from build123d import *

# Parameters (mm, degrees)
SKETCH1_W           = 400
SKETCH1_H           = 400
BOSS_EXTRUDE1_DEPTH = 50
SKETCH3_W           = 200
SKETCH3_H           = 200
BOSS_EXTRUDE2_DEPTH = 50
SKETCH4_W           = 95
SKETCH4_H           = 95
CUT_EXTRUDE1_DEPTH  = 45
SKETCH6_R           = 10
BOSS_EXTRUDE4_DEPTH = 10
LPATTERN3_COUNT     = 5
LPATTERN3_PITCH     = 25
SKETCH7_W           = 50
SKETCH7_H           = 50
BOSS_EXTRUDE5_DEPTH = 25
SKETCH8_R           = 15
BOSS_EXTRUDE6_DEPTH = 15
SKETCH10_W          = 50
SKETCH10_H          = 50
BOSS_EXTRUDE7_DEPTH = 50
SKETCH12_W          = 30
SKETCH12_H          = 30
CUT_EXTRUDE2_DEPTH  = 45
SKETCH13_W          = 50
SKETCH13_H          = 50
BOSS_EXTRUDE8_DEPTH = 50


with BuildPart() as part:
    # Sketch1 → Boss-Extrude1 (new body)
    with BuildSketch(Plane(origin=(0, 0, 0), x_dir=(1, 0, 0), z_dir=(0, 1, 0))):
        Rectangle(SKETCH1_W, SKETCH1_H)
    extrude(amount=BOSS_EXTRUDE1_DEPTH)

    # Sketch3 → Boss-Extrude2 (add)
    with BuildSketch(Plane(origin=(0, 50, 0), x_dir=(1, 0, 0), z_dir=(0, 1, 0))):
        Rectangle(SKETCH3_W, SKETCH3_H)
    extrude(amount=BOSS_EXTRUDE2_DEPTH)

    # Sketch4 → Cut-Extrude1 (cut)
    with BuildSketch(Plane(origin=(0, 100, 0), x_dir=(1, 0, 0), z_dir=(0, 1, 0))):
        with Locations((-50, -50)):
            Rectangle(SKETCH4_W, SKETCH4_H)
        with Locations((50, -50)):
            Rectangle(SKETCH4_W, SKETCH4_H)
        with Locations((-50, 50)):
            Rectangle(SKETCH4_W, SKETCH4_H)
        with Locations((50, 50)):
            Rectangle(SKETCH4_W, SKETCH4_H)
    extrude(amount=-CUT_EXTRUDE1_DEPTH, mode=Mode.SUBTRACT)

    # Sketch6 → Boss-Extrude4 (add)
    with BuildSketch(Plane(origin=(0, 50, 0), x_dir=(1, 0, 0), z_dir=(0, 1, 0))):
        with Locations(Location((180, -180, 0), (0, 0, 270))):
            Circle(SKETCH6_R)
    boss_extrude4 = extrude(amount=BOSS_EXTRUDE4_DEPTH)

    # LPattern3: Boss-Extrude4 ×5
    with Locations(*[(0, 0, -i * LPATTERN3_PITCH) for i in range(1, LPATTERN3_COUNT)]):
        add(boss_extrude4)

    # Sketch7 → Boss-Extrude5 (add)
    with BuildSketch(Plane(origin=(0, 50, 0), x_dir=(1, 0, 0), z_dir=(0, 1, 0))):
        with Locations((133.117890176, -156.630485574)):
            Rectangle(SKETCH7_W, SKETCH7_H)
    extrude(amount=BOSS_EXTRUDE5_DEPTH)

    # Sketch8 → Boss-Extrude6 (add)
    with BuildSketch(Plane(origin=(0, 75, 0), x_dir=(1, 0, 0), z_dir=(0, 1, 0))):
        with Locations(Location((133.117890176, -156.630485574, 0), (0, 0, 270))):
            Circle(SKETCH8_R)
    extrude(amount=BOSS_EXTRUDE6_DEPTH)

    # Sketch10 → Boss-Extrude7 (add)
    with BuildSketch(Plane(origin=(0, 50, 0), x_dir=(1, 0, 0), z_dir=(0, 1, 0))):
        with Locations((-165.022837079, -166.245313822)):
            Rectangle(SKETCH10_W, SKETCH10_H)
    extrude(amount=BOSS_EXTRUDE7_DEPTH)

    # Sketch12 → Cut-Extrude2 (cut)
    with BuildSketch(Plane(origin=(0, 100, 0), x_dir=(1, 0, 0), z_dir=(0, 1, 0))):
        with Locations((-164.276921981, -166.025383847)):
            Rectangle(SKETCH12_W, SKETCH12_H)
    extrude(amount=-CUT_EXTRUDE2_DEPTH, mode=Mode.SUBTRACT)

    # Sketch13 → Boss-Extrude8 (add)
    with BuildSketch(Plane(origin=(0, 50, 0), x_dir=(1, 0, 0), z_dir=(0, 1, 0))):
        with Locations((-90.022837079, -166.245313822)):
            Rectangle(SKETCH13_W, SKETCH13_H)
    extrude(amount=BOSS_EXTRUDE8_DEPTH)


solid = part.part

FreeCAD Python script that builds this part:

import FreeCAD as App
import Part
import Sketcher

doc = App.newDocument("Part")
params = doc.addObject("Spreadsheet::Sheet", "Params")
for row, (alias, value) in enumerate([
    ("sketch1_width", "400 mm"),
    ("pad1_length", "50 mm"),
    ("sketch2_width", "200 mm"),
    ("pad2_length", "50 mm"),
    ("sketch3_width", "95 mm"),
    ("pocket1_length", "45 mm"),
    ("sketch4_diameter", "20 mm"),
    ("pad3_length", "10 mm"),
    ("linearpattern_pitch", "25 mm"),
    ("sketch5_width", "50 mm"),
    ("pad4_length", "25 mm"),
    ("sketch6_diameter", "30 mm"),
    ("pad5_length", "15 mm"),
    ("sketch7_width", "50 mm"),
    ("pad6_length", "50 mm"),
    ("sketch8_width", "30 mm"),
    ("pocket2_length", "45 mm"),
    ("sketch9_width", "50 mm"),
    ("pad7_length", "50 mm"),
], start=1):
    params.set(f"A{row}", alias)
    params.set(f"B{row}", "=" + value)
    params.setAlias(f"B{row}", alias)

body = doc.addObject("PartDesign::Body", "Body")

# Sketch on XZ plane
sketch1 = body.newObject("Sketcher::SketchObject", "Sketch")
sketch1.AttachmentSupport = (doc.getObject("XZ_Plane"), [""])
sketch1.MapMode = "FlatFace"
sketch1.addGeometry(Part.LineSegment(App.Vector(-200, -200, 0), App.Vector(-200, 200, 0)), False)
sketch1.addGeometry(Part.LineSegment(App.Vector(-200, 200, 0), App.Vector(200, 200, 0)), False)
sketch1.addGeometry(Part.LineSegment(App.Vector(200, 200, 0), App.Vector(200, -200, 0)), False)
sketch1.addGeometry(Part.LineSegment(App.Vector(200, -200, 0), App.Vector(-200, -200, 0)), False)
sketch1.addConstraint(Sketcher.Constraint("Coincident", 0, 2, 1, 1))
sketch1.addConstraint(Sketcher.Constraint("Coincident", 1, 2, 2, 1))
sketch1.addConstraint(Sketcher.Constraint("Coincident", 2, 2, 3, 1))
sketch1.addConstraint(Sketcher.Constraint("Coincident", 3, 2, 0, 1))
sketch1.addConstraint(Sketcher.Constraint("Vertical", 0))
sketch1.addConstraint(Sketcher.Constraint("Horizontal", 1))
sketch1.addConstraint(Sketcher.Constraint("Vertical", 2))
sketch1.addConstraint(Sketcher.Constraint("Horizontal", 3))
sketch1.addConstraint(Sketcher.Constraint("Symmetric", 0, 2, 2, 2, -1, 1))
sketch1.addConstraint(Sketcher.Constraint("Equal", 3, 0))
sketch1.addConstraint(Sketcher.Constraint("DistanceX", 1, 1, 1, 2, 400.0))
sketch1.setExpression("Constraints[10]", "Params.sketch1_width")
pad1 = body.newObject("PartDesign::Pad", "Pad")
pad1.Profile = sketch1
pad1.setExpression("Length", "Params.pad1_length")
pad1.Reversed = True

# Sketch on XZ plane
sketch2 = body.newObject("Sketcher::SketchObject", "Sketch001")
sketch2.AttachmentSupport = (doc.getObject("XZ_Plane"), [""])
sketch2.MapMode = "FlatFace"
sketch2.AttachmentOffset = App.Placement(App.Vector(0, 0, -50), App.Rotation())
sketch2.addGeometry(Part.LineSegment(App.Vector(-100, -100, 0), App.Vector(-100, 100, 0)), False)
sketch2.addGeometry(Part.LineSegment(App.Vector(-100, 100, 0), App.Vector(100, 100, 0)), False)
sketch2.addGeometry(Part.LineSegment(App.Vector(100, 100, 0), App.Vector(100, -100, 0)), False)
sketch2.addGeometry(Part.LineSegment(App.Vector(100, -100, 0), App.Vector(-100, -100, 0)), False)
sketch2.addConstraint(Sketcher.Constraint("Coincident", 0, 2, 1, 1))
sketch2.addConstraint(Sketcher.Constraint("Coincident", 1, 2, 2, 1))
sketch2.addConstraint(Sketcher.Constraint("Coincident", 2, 2, 3, 1))
sketch2.addConstraint(Sketcher.Constraint("Coincident", 3, 2, 0, 1))
sketch2.addConstraint(Sketcher.Constraint("Vertical", 0))
sketch2.addConstraint(Sketcher.Constraint("Horizontal", 1))
sketch2.addConstraint(Sketcher.Constraint("Vertical", 2))
sketch2.addConstraint(Sketcher.Constraint("Horizontal", 3))
sketch2.addConstraint(Sketcher.Constraint("Symmetric", 0, 2, 2, 2, -1, 1))
sketch2.addConstraint(Sketcher.Constraint("Equal", 3, 0))
sketch2.addConstraint(Sketcher.Constraint("DistanceX", 1, 1, 1, 2, 200.0))
sketch2.setExpression("Constraints[10]", "Params.sketch2_width")
pad2 = body.newObject("PartDesign::Pad", "Pad001")
pad2.Profile = sketch2
pad2.setExpression("Length", "Params.pad2_length")
pad2.Reversed = True

# Sketch on XZ plane
sketch3 = body.newObject("Sketcher::SketchObject", "Sketch002")
sketch3.AttachmentSupport = (doc.getObject("XZ_Plane"), [""])
sketch3.MapMode = "FlatFace"
sketch3.AttachmentOffset = App.Placement(App.Vector(0, 0, -100), App.Rotation())
sketch3.addGeometry(Part.LineSegment(App.Vector(-98, 2, 0), App.Vector(-98, 98, 0)), False)
sketch3.addGeometry(Part.LineSegment(App.Vector(-98, 98, 0), App.Vector(-2, 98, 0)), False)
sketch3.addGeometry(Part.LineSegment(App.Vector(-2, 98, 0), App.Vector(-2, 2, 0)), False)
sketch3.addGeometry(Part.LineSegment(App.Vector(-2, 2, 0), App.Vector(-98, 2, 0)), False)
sketch3.addGeometry(Part.LineSegment(App.Vector(2, 2, 0), App.Vector(2, 98, 0)), False)
sketch3.addGeometry(Part.LineSegment(App.Vector(2, 98, 0), App.Vector(98, 98, 0)), False)
sketch3.addGeometry(Part.LineSegment(App.Vector(98, 98, 0), App.Vector(98, 2, 0)), False)
sketch3.addGeometry(Part.LineSegment(App.Vector(98, 2, 0), App.Vector(2, 2, 0)), False)
sketch3.addGeometry(Part.LineSegment(App.Vector(-98, -98, 0), App.Vector(-98, -2, 0)), False)
sketch3.addGeometry(Part.LineSegment(App.Vector(-98, -2, 0), App.Vector(-2, -2, 0)), False)
sketch3.addGeometry(Part.LineSegment(App.Vector(-2, -2, 0), App.Vector(-2, -98, 0)), False)
sketch3.addGeometry(Part.LineSegment(App.Vector(-2, -98, 0), App.Vector(-98, -98, 0)), False)
sketch3.addGeometry(Part.LineSegment(App.Vector(2, -98, 0), App.Vector(2, -2, 0)), False)
sketch3.addGeometry(Part.LineSegment(App.Vector(2, -2, 0), App.Vector(98, -2, 0)), False)
sketch3.addGeometry(Part.LineSegment(App.Vector(98, -2, 0), App.Vector(98, -98, 0)), False)
sketch3.addGeometry(Part.LineSegment(App.Vector(98, -98, 0), App.Vector(2, -98, 0)), False)
sketch3.addConstraint(Sketcher.Constraint("Coincident", 0, 2, 1, 1))
sketch3.addConstraint(Sketcher.Constraint("Coincident", 1, 2, 2, 1))
sketch3.addConstraint(Sketcher.Constraint("Coincident", 2, 2, 3, 1))
sketch3.addConstraint(Sketcher.Constraint("Coincident", 3, 2, 0, 1))
sketch3.addConstraint(Sketcher.Constraint("Coincident", 4, 2, 5, 1))
sketch3.addConstraint(Sketcher.Constraint("Coincident", 5, 2, 6, 1))
sketch3.addConstraint(Sketcher.Constraint("Coincident", 6, 2, 7, 1))
sketch3.addConstraint(Sketcher.Constraint("Coincident", 7, 2, 4, 1))
sketch3.addConstraint(Sketcher.Constraint("Coincident", 8, 2, 9, 1))
sketch3.addConstraint(Sketcher.Constraint("Coincident", 9, 2, 10, 1))
sketch3.addConstraint(Sketcher.Constraint("Coincident", 10, 2, 11, 1))
sketch3.addConstraint(Sketcher.Constraint("Coincident", 11, 2, 8, 1))
sketch3.addConstraint(Sketcher.Constraint("Coincident", 12, 2, 13, 1))
sketch3.addConstraint(Sketcher.Constraint("Coincident", 13, 2, 14, 1))
sketch3.addConstraint(Sketcher.Constraint("Coincident", 14, 2, 15, 1))
sketch3.addConstraint(Sketcher.Constraint("Coincident", 15, 2, 12, 1))
sketch3.addConstraint(Sketcher.Constraint("Vertical", 0))
sketch3.addConstraint(Sketcher.Constraint("Horizontal", 1))
sketch3.addConstraint(Sketcher.Constraint("Vertical", 2))
sketch3.addConstraint(Sketcher.Constraint("Horizontal", 3))
sketch3.addConstraint(Sketcher.Constraint("Vertical", 4))
sketch3.addConstraint(Sketcher.Constraint("Horizontal", 5))
sketch3.addConstraint(Sketcher.Constraint("Vertical", 6))
sketch3.addConstraint(Sketcher.Constraint("Horizontal", 7))
sketch3.addConstraint(Sketcher.Constraint("Vertical", 8))
sketch3.addConstraint(Sketcher.Constraint("Horizontal", 9))
sketch3.addConstraint(Sketcher.Constraint("Vertical", 10))
sketch3.addConstraint(Sketcher.Constraint("Horizontal", 11))
sketch3.addConstraint(Sketcher.Constraint("Vertical", 12))
sketch3.addConstraint(Sketcher.Constraint("Horizontal", 13))
sketch3.addConstraint(Sketcher.Constraint("Vertical", 14))
sketch3.addConstraint(Sketcher.Constraint("Horizontal", 15))
sketch3.addConstraint(Sketcher.Constraint("Symmetric", 6, 2, 8, 2, -1, 1))
sketch3.addConstraint(Sketcher.Constraint("Symmetric", 4, 2, 10, 2, -1, 1))
sketch3.addConstraint(Sketcher.Constraint("Symmetric", 2, 2, 12, 2, -1, 1))
sketch3.addConstraint(Sketcher.Constraint("Symmetric", 0, 2, 14, 2, -1, 1))
sketch3.addConstraint(Sketcher.Constraint("Symmetric", 1, 2, 4, 2, -2))
sketch3.addConstraint(Sketcher.Constraint("Symmetric", 3, 2, 6, 2, -2))
sketch3.addConstraint(Sketcher.Constraint("Equal", 15, 0))
sketch3.addConstraint(Sketcher.Constraint("DistanceX", 1, 1, 1, 2, 95.0))
sketch3.addConstraint(Sketcher.Constraint("DistanceX", 1, 2, 4, 2, 5.0))
sketch3.addConstraint(Sketcher.Constraint("DistanceY", 8, 2, 3, 2, 5.0))
sketch3.setExpression("Constraints[39]", "Params.sketch3_width")
pocket1 = body.newObject("PartDesign::Pocket", "Pocket")
pocket1.Profile = sketch3
pocket1.setExpression("Length", "Params.pocket1_length")
pocket1.Reversed = True

# Sketch on XZ plane
sketch4 = body.newObject("Sketcher::SketchObject", "Sketch003")
sketch4.AttachmentSupport = (doc.getObject("XZ_Plane"), [""])
sketch4.MapMode = "FlatFace"
sketch4.AttachmentOffset = App.Placement(App.Vector(0, 0, -50), App.Rotation())
sketch4.addGeometry(Part.Circle(App.Vector(180, 180, 0), App.Vector(0, 0, 1), 10), False)
sketch4.addConstraint(Sketcher.Constraint("Diameter", 0, 20.0))
sketch4.addConstraint(Sketcher.Constraint("DistanceX", -1, 1, 0, 3, 180.0))
sketch4.addConstraint(Sketcher.Constraint("DistanceY", -1, 1, 0, 3, 180.0))
sketch4.setExpression("Constraints[0]", "Params.sketch4_diameter")
pad3 = body.newObject("PartDesign::Pad", "Pad002")
pad3.Profile = sketch4
pad3.setExpression("Length", "Params.pad3_length")
pad3.Reversed = True
doc.recompute()

linearpattern = body.newObject("PartDesign::LinearPattern", "LinearPattern")
linearpattern.Originals = [pad3]
linearpattern.Direction = (doc.getObject("Z_Axis"), [""])
linearpattern.Mode = "offset"
linearpattern.setExpression("Offset", "Params.linearpattern_pitch")
linearpattern.Occurrences = 5
linearpattern.Reversed = True
body.Tip = linearpattern

# Sketch on XZ plane
sketch5 = body.newObject("Sketcher::SketchObject", "Sketch004")
sketch5.AttachmentSupport = (doc.getObject("XZ_Plane"), [""])
sketch5.MapMode = "FlatFace"
sketch5.AttachmentOffset = App.Placement(App.Vector(0, 0, -50), App.Rotation())
sketch5.addGeometry(Part.LineSegment(App.Vector(108, 132, 0), App.Vector(108, 182, 0)), False)
sketch5.addGeometry(Part.LineSegment(App.Vector(108, 182, 0), App.Vector(158, 182, 0)), False)
sketch5.addGeometry(Part.LineSegment(App.Vector(158, 182, 0), App.Vector(158, 132, 0)), False)
sketch5.addGeometry(Part.LineSegment(App.Vector(158, 132, 0), App.Vector(108, 132, 0)), False)
sketch5.addConstraint(Sketcher.Constraint("Coincident", 0, 2, 1, 1))
sketch5.addConstraint(Sketcher.Constraint("Coincident", 1, 2, 2, 1))
sketch5.addConstraint(Sketcher.Constraint("Coincident", 2, 2, 3, 1))
sketch5.addConstraint(Sketcher.Constraint("Coincident", 3, 2, 0, 1))
sketch5.addConstraint(Sketcher.Constraint("Vertical", 0))
sketch5.addConstraint(Sketcher.Constraint("Horizontal", 1))
sketch5.addConstraint(Sketcher.Constraint("Vertical", 2))
sketch5.addConstraint(Sketcher.Constraint("Horizontal", 3))
sketch5.addConstraint(Sketcher.Constraint("Equal", 3, 0))
sketch5.addConstraint(Sketcher.Constraint("DistanceX", 1, 1, 1, 2, 50.0))
sketch5.addConstraint(Sketcher.Constraint("DistanceX", -1, 1, 0, 2, 108.11789))
sketch5.addConstraint(Sketcher.Constraint("DistanceY", -1, 1, 0, 2, 181.630486))
sketch5.setExpression("Constraints[9]", "Params.sketch5_width")
pad4 = body.newObject("PartDesign::Pad", "Pad003")
pad4.Profile = sketch5
pad4.setExpression("Length", "Params.pad4_length")
pad4.Reversed = True

# Sketch on XZ plane
sketch6 = body.newObject("Sketcher::SketchObject", "Sketch005")
sketch6.AttachmentSupport = (doc.getObject("XZ_Plane"), [""])
sketch6.MapMode = "FlatFace"
sketch6.AttachmentOffset = App.Placement(App.Vector(0, 0, -75), App.Rotation())
sketch6.addGeometry(Part.Circle(App.Vector(133, 157, 0), App.Vector(0, 0, 1), 15), False)
sketch6.addConstraint(Sketcher.Constraint("Diameter", 0, 30.0))
sketch6.addConstraint(Sketcher.Constraint("DistanceX", -1, 1, 0, 3, 133.11789))
sketch6.addConstraint(Sketcher.Constraint("DistanceY", -1, 1, 0, 3, 156.630486))
sketch6.setExpression("Constraints[0]", "Params.sketch6_diameter")
pad5 = body.newObject("PartDesign::Pad", "Pad004")
pad5.Profile = sketch6
pad5.setExpression("Length", "Params.pad5_length")
pad5.Reversed = True

# Sketch on XZ plane
sketch7 = body.newObject("Sketcher::SketchObject", "Sketch006")
sketch7.AttachmentSupport = (doc.getObject("XZ_Plane"), [""])
sketch7.MapMode = "FlatFace"
sketch7.AttachmentOffset = App.Placement(App.Vector(0, 0, -50), App.Rotation())
sketch7.addGeometry(Part.LineSegment(App.Vector(-190, 141, 0), App.Vector(-190, 191, 0)), False)
sketch7.addGeometry(Part.LineSegment(App.Vector(-190, 191, 0), App.Vector(-140, 191, 0)), False)
sketch7.addGeometry(Part.LineSegment(App.Vector(-140, 191, 0), App.Vector(-140, 141, 0)), False)
sketch7.addGeometry(Part.LineSegment(App.Vector(-140, 141, 0), App.Vector(-190, 141, 0)), False)
sketch7.addConstraint(Sketcher.Constraint("Coincident", 0, 2, 1, 1))
sketch7.addConstraint(Sketcher.Constraint("Coincident", 1, 2, 2, 1))
sketch7.addConstraint(Sketcher.Constraint("Coincident", 2, 2, 3, 1))
sketch7.addConstraint(Sketcher.Constraint("Coincident", 3, 2, 0, 1))
sketch7.addConstraint(Sketcher.Constraint("Vertical", 0))
sketch7.addConstraint(Sketcher.Constraint("Horizontal", 1))
sketch7.addConstraint(Sketcher.Constraint("Vertical", 2))
sketch7.addConstraint(Sketcher.Constraint("Horizontal", 3))
sketch7.addConstraint(Sketcher.Constraint("Equal", 3, 0))
sketch7.addConstraint(Sketcher.Constraint("DistanceX", 1, 1, 1, 2, 50.0))
sketch7.addConstraint(Sketcher.Constraint("DistanceX", 0, 2, -1, 1, 190.022837))
sketch7.addConstraint(Sketcher.Constraint("DistanceY", -1, 1, 0, 2, 191.245314))
sketch7.setExpression("Constraints[9]", "Params.sketch7_width")
pad6 = body.newObject("PartDesign::Pad", "Pad005")
pad6.Profile = sketch7
pad6.setExpression("Length", "Params.pad6_length")
pad6.Reversed = True

# Sketch on XZ plane
sketch8 = body.newObject("Sketcher::SketchObject", "Sketch007")
sketch8.AttachmentSupport = (doc.getObject("XZ_Plane"), [""])
sketch8.MapMode = "FlatFace"
sketch8.AttachmentOffset = App.Placement(App.Vector(0, 0, -100), App.Rotation())
sketch8.addGeometry(Part.LineSegment(App.Vector(-179, 151, 0), App.Vector(-179, 181, 0)), False)
sketch8.addGeometry(Part.LineSegment(App.Vector(-179, 181, 0), App.Vector(-149, 181, 0)), False)
sketch8.addGeometry(Part.LineSegment(App.Vector(-149, 181, 0), App.Vector(-149, 151, 0)), False)
sketch8.addGeometry(Part.LineSegment(App.Vector(-149, 151, 0), App.Vector(-179, 151, 0)), False)
sketch8.addConstraint(Sketcher.Constraint("Coincident", 0, 2, 1, 1))
sketch8.addConstraint(Sketcher.Constraint("Coincident", 1, 2, 2, 1))
sketch8.addConstraint(Sketcher.Constraint("Coincident", 2, 2, 3, 1))
sketch8.addConstraint(Sketcher.Constraint("Coincident", 3, 2, 0, 1))
sketch8.addConstraint(Sketcher.Constraint("Vertical", 0))
sketch8.addConstraint(Sketcher.Constraint("Horizontal", 1))
sketch8.addConstraint(Sketcher.Constraint("Vertical", 2))
sketch8.addConstraint(Sketcher.Constraint("Horizontal", 3))
sketch8.addConstraint(Sketcher.Constraint("Equal", 3, 0))
sketch8.addConstraint(Sketcher.Constraint("DistanceX", 1, 1, 1, 2, 30.0))
sketch8.addConstraint(Sketcher.Constraint("DistanceX", 0, 2, -1, 1, 179.276922))
sketch8.addConstraint(Sketcher.Constraint("DistanceY", -1, 1, 0, 2, 181.025384))
sketch8.setExpression("Constraints[9]", "Params.sketch8_width")
pocket2 = body.newObject("PartDesign::Pocket", "Pocket001")
pocket2.Profile = sketch8
pocket2.setExpression("Length", "Params.pocket2_length")
pocket2.Reversed = True

# Sketch on XZ plane
sketch9 = body.newObject("Sketcher::SketchObject", "Sketch008")
sketch9.AttachmentSupport = (doc.getObject("XZ_Plane"), [""])
sketch9.MapMode = "FlatFace"
sketch9.AttachmentOffset = App.Placement(App.Vector(0, 0, -50), App.Rotation())
sketch9.addGeometry(Part.LineSegment(App.Vector(-115, 141, 0), App.Vector(-115, 191, 0)), False)
sketch9.addGeometry(Part.LineSegment(App.Vector(-115, 191, 0), App.Vector(-65, 191, 0)), False)
sketch9.addGeometry(Part.LineSegment(App.Vector(-65, 191, 0), App.Vector(-65, 141, 0)), False)
sketch9.addGeometry(Part.LineSegment(App.Vector(-65, 141, 0), App.Vector(-115, 141, 0)), False)
sketch9.addConstraint(Sketcher.Constraint("Coincident", 0, 2, 1, 1))
sketch9.addConstraint(Sketcher.Constraint("Coincident", 1, 2, 2, 1))
sketch9.addConstraint(Sketcher.Constraint("Coincident", 2, 2, 3, 1))
sketch9.addConstraint(Sketcher.Constraint("Coincident", 3, 2, 0, 1))
sketch9.addConstraint(Sketcher.Constraint("Vertical", 0))
sketch9.addConstraint(Sketcher.Constraint("Horizontal", 1))
sketch9.addConstraint(Sketcher.Constraint("Vertical", 2))
sketch9.addConstraint(Sketcher.Constraint("Horizontal", 3))
sketch9.addConstraint(Sketcher.Constraint("Equal", 3, 0))
sketch9.addConstraint(Sketcher.Constraint("DistanceX", 1, 1, 1, 2, 50.0))
sketch9.addConstraint(Sketcher.Constraint("DistanceX", 0, 2, -1, 1, 115.022837))
sketch9.addConstraint(Sketcher.Constraint("DistanceY", -1, 1, 0, 2, 191.245314))
sketch9.setExpression("Constraints[9]", "Params.sketch9_width")
pad7 = body.newObject("PartDesign::Pad", "Pad006")
pad7.Profile = sketch9
pad7.setExpression("Length", "Params.pad7_length")
pad7.Reversed = True

doc.recompute()
